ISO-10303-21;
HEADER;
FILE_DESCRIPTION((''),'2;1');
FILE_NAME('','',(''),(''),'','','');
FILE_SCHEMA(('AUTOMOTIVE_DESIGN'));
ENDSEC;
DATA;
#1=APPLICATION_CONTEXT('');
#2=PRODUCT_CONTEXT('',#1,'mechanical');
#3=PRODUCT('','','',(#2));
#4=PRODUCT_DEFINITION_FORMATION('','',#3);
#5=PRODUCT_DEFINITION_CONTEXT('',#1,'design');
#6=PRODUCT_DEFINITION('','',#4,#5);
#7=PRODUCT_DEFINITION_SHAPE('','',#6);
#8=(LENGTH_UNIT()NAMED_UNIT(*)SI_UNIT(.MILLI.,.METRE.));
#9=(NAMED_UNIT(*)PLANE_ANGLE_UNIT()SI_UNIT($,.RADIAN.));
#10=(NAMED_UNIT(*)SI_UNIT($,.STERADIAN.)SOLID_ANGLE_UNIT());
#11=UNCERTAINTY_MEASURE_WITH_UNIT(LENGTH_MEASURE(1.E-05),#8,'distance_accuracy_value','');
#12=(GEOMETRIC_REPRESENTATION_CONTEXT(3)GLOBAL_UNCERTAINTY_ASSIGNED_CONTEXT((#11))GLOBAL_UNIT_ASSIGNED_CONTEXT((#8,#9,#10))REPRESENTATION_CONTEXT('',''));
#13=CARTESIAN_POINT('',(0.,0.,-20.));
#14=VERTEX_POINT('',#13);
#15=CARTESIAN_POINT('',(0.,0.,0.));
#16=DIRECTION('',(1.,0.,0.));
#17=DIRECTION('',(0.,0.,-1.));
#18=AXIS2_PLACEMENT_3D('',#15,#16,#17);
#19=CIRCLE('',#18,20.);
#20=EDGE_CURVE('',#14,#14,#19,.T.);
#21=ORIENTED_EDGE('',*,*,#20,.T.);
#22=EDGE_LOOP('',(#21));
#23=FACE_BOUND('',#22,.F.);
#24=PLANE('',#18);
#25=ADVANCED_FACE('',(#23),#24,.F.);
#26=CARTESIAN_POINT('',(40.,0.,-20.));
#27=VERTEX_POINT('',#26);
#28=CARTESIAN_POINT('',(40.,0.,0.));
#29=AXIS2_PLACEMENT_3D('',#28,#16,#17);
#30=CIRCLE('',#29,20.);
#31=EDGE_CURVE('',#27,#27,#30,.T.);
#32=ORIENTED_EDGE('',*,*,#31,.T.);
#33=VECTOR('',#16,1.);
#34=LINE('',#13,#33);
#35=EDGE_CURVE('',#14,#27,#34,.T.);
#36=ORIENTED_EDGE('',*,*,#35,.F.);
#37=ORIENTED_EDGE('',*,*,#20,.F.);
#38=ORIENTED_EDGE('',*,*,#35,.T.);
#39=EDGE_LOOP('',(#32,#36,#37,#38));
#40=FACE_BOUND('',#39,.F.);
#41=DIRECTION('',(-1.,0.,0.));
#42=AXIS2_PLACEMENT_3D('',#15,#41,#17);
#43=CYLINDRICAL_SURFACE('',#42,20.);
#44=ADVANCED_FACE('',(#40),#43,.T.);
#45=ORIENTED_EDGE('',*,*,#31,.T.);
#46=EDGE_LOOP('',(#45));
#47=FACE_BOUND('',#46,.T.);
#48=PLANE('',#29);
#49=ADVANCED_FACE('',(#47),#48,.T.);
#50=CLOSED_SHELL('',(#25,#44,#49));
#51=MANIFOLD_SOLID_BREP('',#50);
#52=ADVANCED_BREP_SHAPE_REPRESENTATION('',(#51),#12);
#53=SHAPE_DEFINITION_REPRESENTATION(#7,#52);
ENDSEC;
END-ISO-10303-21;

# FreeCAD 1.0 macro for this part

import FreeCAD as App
import Part
import Sketcher

V = App.Vector
Q = App.Units.Quantity

doc = App.newDocument("Part")
params = doc.addObject("Spreadsheet::Sheet", "Params")
for row, (alias, value) in enumerate([
    ("sketch1_diameter", "40 mm"),
    ("pad1_length", "40 mm"),
], start=1):
    params.set(f"A{row}", alias)
    params.set(f"B{row}", "=" + value)
    params.setAlias(f"B{row}", alias)

body = doc.addObject("PartDesign::Body", "Body")

sketch1 = body.newObject("Sketcher::SketchObject", "Sketch")
sketch1.AttachmentSupport = (doc.getObject("YZ_Plane"), [""])
sketch1.MapMode = "FlatFace"
sketch1.addGeometry(Part.Circle(V(0, 0, 0), V(0, 0, 1), 20), False)
sketch1.addConstraint([
    Sketcher.Constraint("Coincident", 0, 3, -1, 1),
    Sketcher.Constraint("Diameter", 0, Q("40 mm")),
])
sketch1.setExpression("Constraints[1]", "Params.sketch1_diameter")
pad1 = body.newObject("PartDesign::Pad", "Pad")
pad1.Profile = sketch1
pad1.setExpression("Length", "Params.pad1_length")

doc.recompute()
